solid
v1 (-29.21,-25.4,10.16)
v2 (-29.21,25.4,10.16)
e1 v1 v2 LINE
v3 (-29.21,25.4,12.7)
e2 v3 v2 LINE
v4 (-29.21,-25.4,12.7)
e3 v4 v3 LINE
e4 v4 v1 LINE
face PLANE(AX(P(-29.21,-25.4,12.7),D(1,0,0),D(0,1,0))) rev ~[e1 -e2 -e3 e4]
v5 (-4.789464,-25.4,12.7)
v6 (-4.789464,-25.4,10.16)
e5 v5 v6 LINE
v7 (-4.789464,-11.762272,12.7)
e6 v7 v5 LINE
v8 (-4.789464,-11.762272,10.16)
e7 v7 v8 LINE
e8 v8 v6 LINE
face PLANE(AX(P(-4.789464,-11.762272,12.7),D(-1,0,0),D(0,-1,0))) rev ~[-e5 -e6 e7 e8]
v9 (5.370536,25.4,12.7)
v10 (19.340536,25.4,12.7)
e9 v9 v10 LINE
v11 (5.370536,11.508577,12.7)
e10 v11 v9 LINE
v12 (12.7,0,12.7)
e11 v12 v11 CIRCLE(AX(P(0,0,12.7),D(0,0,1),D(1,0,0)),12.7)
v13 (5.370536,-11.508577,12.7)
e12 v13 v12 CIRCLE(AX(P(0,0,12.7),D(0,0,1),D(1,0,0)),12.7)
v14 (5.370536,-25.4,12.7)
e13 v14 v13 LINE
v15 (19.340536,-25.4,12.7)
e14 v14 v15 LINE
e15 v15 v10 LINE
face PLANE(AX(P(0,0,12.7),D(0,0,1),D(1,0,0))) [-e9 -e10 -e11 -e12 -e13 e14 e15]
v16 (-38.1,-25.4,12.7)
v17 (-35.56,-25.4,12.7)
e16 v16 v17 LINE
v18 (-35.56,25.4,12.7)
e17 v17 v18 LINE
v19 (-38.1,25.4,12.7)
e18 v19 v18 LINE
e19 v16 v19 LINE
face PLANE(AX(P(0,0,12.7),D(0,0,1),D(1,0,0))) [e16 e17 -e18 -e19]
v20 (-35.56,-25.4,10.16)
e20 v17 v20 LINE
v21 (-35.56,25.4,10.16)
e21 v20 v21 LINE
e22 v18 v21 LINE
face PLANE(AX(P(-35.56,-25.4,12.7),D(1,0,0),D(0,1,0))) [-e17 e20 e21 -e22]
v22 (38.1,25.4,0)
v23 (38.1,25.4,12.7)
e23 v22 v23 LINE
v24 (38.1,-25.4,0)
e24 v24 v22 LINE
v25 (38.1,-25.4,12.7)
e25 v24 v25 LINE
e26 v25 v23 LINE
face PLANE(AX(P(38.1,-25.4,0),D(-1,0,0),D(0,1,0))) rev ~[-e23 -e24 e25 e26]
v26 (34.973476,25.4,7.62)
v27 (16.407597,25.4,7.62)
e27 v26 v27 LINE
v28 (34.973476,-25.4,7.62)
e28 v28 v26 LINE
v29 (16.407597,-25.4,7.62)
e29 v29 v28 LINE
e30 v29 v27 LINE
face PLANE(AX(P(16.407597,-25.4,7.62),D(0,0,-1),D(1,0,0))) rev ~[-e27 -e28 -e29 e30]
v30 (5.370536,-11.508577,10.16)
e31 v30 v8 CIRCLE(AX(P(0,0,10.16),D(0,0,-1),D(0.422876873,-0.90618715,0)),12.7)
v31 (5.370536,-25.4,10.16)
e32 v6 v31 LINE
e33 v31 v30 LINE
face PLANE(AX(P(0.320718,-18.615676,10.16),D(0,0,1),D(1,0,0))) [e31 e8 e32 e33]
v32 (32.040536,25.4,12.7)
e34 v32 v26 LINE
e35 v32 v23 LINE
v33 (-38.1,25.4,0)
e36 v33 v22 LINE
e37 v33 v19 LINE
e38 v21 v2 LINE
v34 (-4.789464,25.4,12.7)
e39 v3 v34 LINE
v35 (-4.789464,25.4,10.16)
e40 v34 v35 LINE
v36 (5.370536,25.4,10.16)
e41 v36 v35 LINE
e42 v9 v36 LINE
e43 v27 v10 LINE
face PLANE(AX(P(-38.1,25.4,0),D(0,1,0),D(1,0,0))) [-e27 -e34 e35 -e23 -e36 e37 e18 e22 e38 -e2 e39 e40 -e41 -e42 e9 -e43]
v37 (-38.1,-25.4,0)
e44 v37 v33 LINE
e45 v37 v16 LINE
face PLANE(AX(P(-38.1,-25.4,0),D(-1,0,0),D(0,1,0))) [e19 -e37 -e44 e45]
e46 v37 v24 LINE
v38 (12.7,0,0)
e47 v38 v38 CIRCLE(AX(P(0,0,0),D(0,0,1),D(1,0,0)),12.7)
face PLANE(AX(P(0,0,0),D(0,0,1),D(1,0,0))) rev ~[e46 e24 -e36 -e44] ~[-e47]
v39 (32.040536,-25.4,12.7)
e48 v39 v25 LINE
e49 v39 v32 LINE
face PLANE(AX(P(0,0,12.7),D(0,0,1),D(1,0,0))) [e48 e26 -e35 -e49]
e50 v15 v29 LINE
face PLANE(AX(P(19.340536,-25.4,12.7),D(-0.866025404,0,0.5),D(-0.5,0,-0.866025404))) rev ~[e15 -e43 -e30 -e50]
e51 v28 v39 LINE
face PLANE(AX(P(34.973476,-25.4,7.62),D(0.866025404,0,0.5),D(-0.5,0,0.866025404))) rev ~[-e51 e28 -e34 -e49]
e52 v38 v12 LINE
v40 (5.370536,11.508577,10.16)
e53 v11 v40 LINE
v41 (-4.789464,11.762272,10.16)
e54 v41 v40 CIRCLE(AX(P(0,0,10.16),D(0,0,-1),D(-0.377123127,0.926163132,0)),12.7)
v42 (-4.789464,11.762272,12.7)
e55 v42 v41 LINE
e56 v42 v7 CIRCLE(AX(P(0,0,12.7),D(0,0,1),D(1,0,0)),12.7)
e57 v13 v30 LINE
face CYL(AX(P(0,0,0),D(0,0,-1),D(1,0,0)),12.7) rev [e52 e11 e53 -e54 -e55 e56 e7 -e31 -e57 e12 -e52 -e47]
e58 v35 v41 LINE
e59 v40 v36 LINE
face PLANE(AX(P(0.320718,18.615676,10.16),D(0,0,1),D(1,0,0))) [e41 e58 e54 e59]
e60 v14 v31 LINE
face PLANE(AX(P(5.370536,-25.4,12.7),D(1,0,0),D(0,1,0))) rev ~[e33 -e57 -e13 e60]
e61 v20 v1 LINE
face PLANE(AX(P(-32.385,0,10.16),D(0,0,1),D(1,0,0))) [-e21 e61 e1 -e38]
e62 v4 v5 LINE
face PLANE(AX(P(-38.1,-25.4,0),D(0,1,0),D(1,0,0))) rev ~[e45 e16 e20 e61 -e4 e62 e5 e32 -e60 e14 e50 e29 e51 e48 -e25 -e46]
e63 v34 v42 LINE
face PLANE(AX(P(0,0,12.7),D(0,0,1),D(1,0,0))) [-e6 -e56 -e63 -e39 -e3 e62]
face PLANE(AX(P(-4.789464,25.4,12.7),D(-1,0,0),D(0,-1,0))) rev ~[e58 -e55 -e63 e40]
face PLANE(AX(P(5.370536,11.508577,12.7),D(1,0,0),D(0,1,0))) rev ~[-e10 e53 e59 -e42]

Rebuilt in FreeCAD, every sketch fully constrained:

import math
import FreeCAD as App
import Part
import Sketcher

V = App.Vector
Q = App.Units.Quantity

doc = App.newDocument("Part")
body = doc.addObject("PartDesign::Body", "Body")

# Sketch on XY plane
sketch1 = doc.addObject("Sketcher::SketchObject", "Sketch")
body.addObject(sketch1)
sketch1.AttachmentSupport = (doc.XY_Plane, [""])
sketch1.MapMode = "FlatFace"
sketch1.addGeometry(Part.LineSegment(V(-38, 25, 0), V(-38, -25, 0)), False)
sketch1.addGeometry(Part.LineSegment(V(-38, -25, 0), V(38, -25, 0)), False)
sketch1.addGeometry(Part.LineSegment(V(38, -25, 0), V(38, 25, 0)), False)
sketch1.addGeometry(Part.LineSegment(V(38, 25, 0), V(-38, 25, 0)), False)
sketch1.addGeometry(Part.Circle(V(0, 0, 0), V(0, 0, 1), 13), False)
sketch1.addConstraint(Sketcher.Constraint("Coincident", 0, 2, 1, 1))
sketch1.addConstraint(Sketcher.Constraint("Coincident", 1, 2, 2, 1))
sketch1.addConstraint(Sketcher.Constraint("Coincident", 2, 2, 3, 1))
sketch1.addConstraint(Sketcher.Constraint("Coincident", 3, 2, 0, 1))
sketch1.addConstraint(Sketcher.Constraint("Vertical", 0))
sketch1.addConstraint(Sketcher.Constraint("Horizontal", 1))
sketch1.addConstraint(Sketcher.Constraint("Vertical", 2))
sketch1.addConstraint(Sketcher.Constraint("Horizontal", 3))
sketch1.addConstraint(Sketcher.Constraint("Coincident", 4, 3, -1, 1))
sketch1.addConstraint(Sketcher.Constraint("Symmetric", 0, 2, 2, 2, -1, 1))
sketch1.addConstraint(Sketcher.Constraint("Diameter", 4, Q("1 in")))
sketch1.addConstraint(Sketcher.Constraint("DistanceX", 1, 1, 1, 2, Q("3 in")))
sketch1.addConstraint(Sketcher.Constraint("DistanceY", 0, 2, 0, 1, Q("2 in")))
pad1 = doc.addObject("PartDesign::Pad", "Pad")
body.addObject(pad1)
pad1.Profile = sketch1
pad1.Length = Q("0.5 in")

# Sketch on XY plane
sketch2 = doc.addObject("Sketcher::SketchObject", "Sketch001")
body.addObject(sketch2)
sketch2.AttachmentSupport = (doc.XY_Plane, [""])
sketch2.MapMode = "FlatFace"
sketch2.AttachmentOffset = App.Placement(V(0, 0, 0.5 * 25.4), App.Rotation())
sketch2.addGeometry(Part.LineSegment(V(-36, 25, 0), V(-36, -25, 0)), False)
sketch2.addGeometry(Part.LineSegment(V(-36, -25, 0), V(-29, -25, 0)), False)
sketch2.addGeometry(Part.LineSegment(V(-29, -25, 0), V(-29, 25, 0)), False)
sketch2.addGeometry(Part.LineSegment(V(-29, 25, 0), V(-36, 25, 0)), False)
sketch2.addGeometry(Part.LineSegment(V(5, 25, 0), V(-5, 25, 0)), False)
sketch2.addGeometry(Part.LineSegment(V(-5, 25, 0), V(-5, 12, 0)), False)
sketch2.addGeometry(Part.ArcOfCircle(Part.Circle(V(0, 0, 0), V(0, 0, 1), 13), math.radians(65), math.radians(112)), False)
sketch2.addGeometry(Part.LineSegment(V(5, 12, 0), V(5, 25, 0)), False)
sketch2.addGeometry(Part.LineSegment(V(-5, -12, 0), V(-5, -25, 0)), False)
sketch2.addGeometry(Part.LineSegment(V(-5, -25, 0), V(5, -25, 0)), False)
sketch2.addGeometry(Part.LineSegment(V(5, -25, 0), V(5, -12, 0)), False)
sketch2.addGeometry(Part.ArcOfCircle(Part.Circle(V(0, 0, 0), V(0, 0, 1), 13), math.radians(-112), math.radians(-65)), False)
sketch2.addConstraint(Sketcher.Constraint("Coincident", 0, 2, 1, 1))
sketch2.addConstraint(Sketcher.Constraint("Coincident", 1, 2, 2, 1))
sketch2.addConstraint(Sketcher.Constraint("Coincident", 2, 2, 3, 1))
sketch2.addConstraint(Sketcher.Constraint("Coincident", 3, 2, 0, 1))
sketch2.addConstraint(Sketcher.Constraint("Coincident", 4, 2, 5, 1))
sketch2.addConstraint(Sketcher.Constraint("Coincident", 5, 2, 6, 2))
sketch2.addConstraint(Sketcher.Constraint("Coincident", 6, 1, 7, 1))
sketch2.addConstraint(Sketcher.Constraint("Coincident", 7, 2, 4, 1))
sketch2.addConstraint(Sketcher.Constraint("Coincident", 8, 2, 9, 1))
sketch2.addConstraint(Sketcher.Constraint("Coincident", 9, 2, 10, 1))
sketch2.addConstraint(Sketcher.Constraint("Coincident", 10, 2, 11, 2))
sketch2.addConstraint(Sketcher.Constraint("Coincident", 11, 1, 8, 1))
sketch2.addConstraint(Sketcher.Constraint("Vertical", 0))
sketch2.addConstraint(Sketcher.Constraint("Horizontal", 1))
sketch2.addConstraint(Sketcher.Constraint("Vertical", 2))
sketch2.addConstraint(Sketcher.Constraint("Horizontal", 3))
sketch2.addConstraint(Sketcher.Constraint("Horizontal", 4))
sketch2.addConstraint(Sketcher.Constraint("Vertical", 5))
sketch2.addConstraint(Sketcher.Constraint("Vertical", 7))
sketch2.addConstraint(Sketcher.Constraint("Vertical", 8))
sketch2.addConstraint(Sketcher.Constraint("Horizontal", 9))
sketch2.addConstraint(Sketcher.Constraint("Vertical", 10))
sketch2.addConstraint(Sketcher.Constraint("Coincident", 6, 3, -1, 1))
sketch2.addConstraint(Sketcher.Constraint("Coincident", 11, 3, -1, 1))
sketch2.addConstraint(Sketcher.Constraint("Equal", 6, 11))
sketch2.addConstraint(Sketcher.Constraint("Symmetric", 4, 2, 8, 2, -1))
sketch2.addConstraint(Sketcher.Constraint("Horizontal", 3, 2, 4, 2))
sketch2.addConstraint(Sketcher.Constraint("Horizontal", 1, 2, 8, 2))
sketch2.addConstraint(Sketcher.Constraint("Vertical", 7, 2, 9, 2))
sketch2.addConstraint(Sketcher.Constraint("Radius", 6, Q("0.5 in")))
sketch2.addConstraint(Sketcher.Constraint("DistanceY", 0, 2, 0, 1, Q("2 in")))
sketch2.addConstraint(Sketcher.Constraint("DistanceX", 4, 2, 4, 1, Q("0.4 in")))
sketch2.addConstraint(Sketcher.Constraint("DistanceX", 1, 1, 1, 2, Q("0.25 in")))
sketch2.addConstraint(Sketcher.Constraint("DistanceX", 0, 2, -1, 1, Q("1.4 in")))
sketch2.addConstraint(Sketcher.Constraint("DistanceY", 5, 2, 5, 1, 13.637728))
pocket1 = doc.addObject("PartDesign::Pocket", "Pocket")
body.addObject(pocket1)
pocket1.Profile = sketch2
pocket1.Length = Q("0.1 in")

# Sketch on XZ plane
sketch3 = doc.addObject("Sketcher::SketchObject", "Sketch002")
body.addObject(sketch3)
sketch3.AttachmentSupport = (doc.XZ_Plane, [""])
sketch3.MapMode = "FlatFace"
sketch3.AttachmentOffset = App.Placement(V(0, 0, 1 * 25.4), App.Rotation())
sketch3.addGeometry(Part.LineSegment(V(32, 13, 0), V(19, 13, 0)), False)
sketch3.addGeometry(Part.LineSegment(V(19, 13, 0), V(16, 8, 0)), False)
sketch3.addGeometry(Part.LineSegment(V(16, 8, 0), V(35, 8, 0)), False)
sketch3.addGeometry(Part.LineSegment(V(35, 8, 0), V(32, 13, 0)), False)
sketch3.addConstraint(Sketcher.Constraint("Coincident", 0, 2, 1, 1))
sketch3.addConstraint(Sketcher.Constraint("Coincident", 1, 2, 2, 1))
sketch3.addConstraint(Sketcher.Constraint("Coincident", 2, 2, 3, 1))
sketch3.addConstraint(Sketcher.Constraint("Coincident", 3, 2, 0, 1))
sketch3.addConstraint(Sketcher.Constraint("Horizontal", 0))
sketch3.addConstraint(Sketcher.Constraint("Horizontal", 2))
sketch3.addConstraint(Sketcher.Constraint("Equal", 1, 3))
sketch3.addConstraint(Sketcher.Constraint("DistanceX", 0, 2, 0, 1, Q("0.5 in")))
sketch3.addConstraint(Sketcher.Constraint("Angle", 1, Q("-120 deg")))
sketch3.addConstraint(Sketcher.Constraint("DistanceY", -1, 1, 0, 2, Q("0.5 in")))
sketch3.addConstraint(Sketcher.Constraint("DistanceY", -1, 1, 1, 2, Q("0.3 in")))
sketch3.addConstraint(Sketcher.Constraint("DistanceX", -1, 1, 0, 2, 19.340536))
pocket2 = doc.addObject("PartDesign::Pocket", "Pocket001")
body.addObject(pocket2)
pocket2.Profile = sketch3
pocket2.Type = "ThroughAll"

doc.recompute()
